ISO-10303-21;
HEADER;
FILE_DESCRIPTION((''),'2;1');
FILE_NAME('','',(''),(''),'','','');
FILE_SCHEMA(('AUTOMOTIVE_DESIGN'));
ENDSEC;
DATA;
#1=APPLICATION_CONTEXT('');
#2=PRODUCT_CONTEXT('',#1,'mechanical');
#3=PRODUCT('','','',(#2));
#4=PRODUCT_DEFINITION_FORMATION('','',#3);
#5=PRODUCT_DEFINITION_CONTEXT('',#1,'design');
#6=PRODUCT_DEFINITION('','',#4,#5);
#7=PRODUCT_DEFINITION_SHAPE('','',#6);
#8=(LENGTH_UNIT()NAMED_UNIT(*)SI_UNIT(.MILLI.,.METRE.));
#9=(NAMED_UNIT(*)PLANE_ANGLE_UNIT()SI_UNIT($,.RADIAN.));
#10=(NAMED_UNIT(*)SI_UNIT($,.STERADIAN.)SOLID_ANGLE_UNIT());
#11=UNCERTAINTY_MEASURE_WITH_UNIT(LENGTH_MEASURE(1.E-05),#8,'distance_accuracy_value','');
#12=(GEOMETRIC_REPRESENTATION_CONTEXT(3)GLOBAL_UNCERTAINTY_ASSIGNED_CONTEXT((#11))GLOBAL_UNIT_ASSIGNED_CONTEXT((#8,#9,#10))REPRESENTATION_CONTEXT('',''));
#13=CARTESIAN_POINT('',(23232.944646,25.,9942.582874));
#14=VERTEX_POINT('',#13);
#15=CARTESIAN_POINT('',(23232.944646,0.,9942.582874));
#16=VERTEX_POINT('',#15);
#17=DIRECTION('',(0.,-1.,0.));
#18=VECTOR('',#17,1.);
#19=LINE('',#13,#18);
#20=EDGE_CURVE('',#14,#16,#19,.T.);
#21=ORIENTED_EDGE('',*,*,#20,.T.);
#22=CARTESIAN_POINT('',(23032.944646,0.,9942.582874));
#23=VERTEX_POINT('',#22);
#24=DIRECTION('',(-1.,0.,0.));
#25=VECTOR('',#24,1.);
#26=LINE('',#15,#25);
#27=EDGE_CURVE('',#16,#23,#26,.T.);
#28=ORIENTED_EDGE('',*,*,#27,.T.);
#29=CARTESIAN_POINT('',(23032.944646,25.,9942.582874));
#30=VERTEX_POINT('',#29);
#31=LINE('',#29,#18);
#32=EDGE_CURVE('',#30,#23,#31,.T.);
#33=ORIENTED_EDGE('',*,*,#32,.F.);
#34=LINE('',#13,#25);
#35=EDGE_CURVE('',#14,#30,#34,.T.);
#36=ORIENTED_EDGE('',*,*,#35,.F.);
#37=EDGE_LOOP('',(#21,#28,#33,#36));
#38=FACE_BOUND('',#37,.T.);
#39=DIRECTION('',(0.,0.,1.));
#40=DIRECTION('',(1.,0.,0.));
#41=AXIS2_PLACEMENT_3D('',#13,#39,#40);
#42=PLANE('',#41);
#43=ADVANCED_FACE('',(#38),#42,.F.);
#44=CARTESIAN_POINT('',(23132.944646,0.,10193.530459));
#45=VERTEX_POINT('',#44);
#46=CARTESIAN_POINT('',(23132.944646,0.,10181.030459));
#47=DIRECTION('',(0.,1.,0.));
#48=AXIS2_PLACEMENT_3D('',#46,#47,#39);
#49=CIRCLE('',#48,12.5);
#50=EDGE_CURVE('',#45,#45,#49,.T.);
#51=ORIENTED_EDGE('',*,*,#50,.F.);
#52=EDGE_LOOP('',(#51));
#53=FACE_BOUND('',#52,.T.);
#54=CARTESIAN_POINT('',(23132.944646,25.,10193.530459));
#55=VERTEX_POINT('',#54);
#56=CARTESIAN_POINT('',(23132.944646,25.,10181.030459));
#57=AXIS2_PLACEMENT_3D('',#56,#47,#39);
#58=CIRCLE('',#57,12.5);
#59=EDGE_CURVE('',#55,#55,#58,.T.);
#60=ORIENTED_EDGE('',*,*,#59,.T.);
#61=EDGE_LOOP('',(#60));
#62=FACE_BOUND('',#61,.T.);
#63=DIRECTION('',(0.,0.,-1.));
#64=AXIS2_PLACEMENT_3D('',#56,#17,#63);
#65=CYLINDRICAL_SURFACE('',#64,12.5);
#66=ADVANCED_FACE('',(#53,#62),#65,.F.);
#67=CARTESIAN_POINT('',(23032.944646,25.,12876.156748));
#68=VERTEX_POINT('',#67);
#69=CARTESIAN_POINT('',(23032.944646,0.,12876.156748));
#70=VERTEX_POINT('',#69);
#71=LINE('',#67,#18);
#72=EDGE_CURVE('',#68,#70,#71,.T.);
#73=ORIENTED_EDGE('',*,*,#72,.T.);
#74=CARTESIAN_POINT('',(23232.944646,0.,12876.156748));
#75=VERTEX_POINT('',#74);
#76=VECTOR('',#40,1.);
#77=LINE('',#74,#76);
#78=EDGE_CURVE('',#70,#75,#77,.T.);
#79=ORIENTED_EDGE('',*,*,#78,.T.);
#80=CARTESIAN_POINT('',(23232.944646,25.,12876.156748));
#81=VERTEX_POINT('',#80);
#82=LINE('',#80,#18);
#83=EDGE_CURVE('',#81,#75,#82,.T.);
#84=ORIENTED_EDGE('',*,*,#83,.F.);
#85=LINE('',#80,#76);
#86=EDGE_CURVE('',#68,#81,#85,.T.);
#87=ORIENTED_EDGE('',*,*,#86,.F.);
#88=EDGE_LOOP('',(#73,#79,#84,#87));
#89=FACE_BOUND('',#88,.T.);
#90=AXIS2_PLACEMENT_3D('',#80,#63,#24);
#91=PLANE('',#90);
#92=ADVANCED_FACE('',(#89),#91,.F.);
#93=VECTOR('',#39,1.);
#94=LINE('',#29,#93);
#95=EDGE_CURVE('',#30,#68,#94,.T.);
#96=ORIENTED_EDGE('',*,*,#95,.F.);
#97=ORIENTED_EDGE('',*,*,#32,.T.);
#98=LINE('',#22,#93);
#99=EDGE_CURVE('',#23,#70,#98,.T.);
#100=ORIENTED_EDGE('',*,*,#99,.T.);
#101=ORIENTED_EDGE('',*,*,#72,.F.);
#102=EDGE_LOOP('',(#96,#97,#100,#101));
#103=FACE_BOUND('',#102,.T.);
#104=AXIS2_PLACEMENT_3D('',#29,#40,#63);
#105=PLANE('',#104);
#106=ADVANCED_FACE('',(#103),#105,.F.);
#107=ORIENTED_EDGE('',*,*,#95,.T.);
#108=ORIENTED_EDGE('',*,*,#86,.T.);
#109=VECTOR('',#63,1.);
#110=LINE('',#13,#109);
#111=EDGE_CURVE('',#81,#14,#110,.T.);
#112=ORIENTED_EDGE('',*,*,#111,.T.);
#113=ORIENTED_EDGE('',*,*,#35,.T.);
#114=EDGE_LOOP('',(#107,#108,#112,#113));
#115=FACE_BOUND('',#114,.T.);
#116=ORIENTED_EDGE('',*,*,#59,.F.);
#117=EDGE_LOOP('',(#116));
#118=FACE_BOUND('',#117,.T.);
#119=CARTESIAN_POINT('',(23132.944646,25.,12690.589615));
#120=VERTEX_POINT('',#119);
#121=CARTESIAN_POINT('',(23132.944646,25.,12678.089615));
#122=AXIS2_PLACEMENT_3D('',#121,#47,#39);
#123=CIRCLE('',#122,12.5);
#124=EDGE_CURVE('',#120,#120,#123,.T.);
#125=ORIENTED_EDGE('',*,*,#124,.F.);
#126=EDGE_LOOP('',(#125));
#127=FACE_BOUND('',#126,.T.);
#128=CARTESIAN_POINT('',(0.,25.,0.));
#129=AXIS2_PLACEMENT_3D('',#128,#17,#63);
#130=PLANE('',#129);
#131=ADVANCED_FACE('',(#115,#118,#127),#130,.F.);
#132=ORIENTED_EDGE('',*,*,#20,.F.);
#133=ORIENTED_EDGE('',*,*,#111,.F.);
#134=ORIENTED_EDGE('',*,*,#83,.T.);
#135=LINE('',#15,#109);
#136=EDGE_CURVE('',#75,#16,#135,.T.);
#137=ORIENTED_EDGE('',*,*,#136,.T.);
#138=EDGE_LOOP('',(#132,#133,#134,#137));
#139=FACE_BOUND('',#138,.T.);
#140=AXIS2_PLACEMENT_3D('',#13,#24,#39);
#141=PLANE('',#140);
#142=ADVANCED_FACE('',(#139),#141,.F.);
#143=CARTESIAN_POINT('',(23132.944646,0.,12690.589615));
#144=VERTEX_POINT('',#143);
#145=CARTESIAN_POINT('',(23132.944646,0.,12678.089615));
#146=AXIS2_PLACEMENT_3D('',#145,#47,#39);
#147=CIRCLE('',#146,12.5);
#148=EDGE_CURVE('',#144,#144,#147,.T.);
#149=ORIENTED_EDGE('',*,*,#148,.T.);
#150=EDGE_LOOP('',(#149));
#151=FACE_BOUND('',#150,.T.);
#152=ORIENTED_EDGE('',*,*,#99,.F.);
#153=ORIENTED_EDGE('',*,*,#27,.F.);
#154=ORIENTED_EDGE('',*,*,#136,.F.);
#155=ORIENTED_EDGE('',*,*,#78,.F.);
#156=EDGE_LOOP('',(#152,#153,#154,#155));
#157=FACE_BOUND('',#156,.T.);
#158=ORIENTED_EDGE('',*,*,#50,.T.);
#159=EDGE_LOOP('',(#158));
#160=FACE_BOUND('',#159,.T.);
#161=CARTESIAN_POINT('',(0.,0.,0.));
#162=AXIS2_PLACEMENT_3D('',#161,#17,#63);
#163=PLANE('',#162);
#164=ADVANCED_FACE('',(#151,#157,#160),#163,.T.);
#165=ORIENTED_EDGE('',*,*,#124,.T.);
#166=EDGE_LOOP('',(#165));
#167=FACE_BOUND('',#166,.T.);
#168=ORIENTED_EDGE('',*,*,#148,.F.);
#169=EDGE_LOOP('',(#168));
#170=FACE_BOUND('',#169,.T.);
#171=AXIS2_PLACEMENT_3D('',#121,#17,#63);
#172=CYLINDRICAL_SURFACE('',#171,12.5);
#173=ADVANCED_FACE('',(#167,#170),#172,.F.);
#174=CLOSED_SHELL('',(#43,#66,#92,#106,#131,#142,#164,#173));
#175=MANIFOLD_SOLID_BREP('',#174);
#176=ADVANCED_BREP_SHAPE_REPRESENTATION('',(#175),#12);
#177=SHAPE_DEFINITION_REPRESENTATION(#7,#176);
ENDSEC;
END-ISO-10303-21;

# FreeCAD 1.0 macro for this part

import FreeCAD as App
import Part
import Sketcher
from FreeCAD import Vector

doc = App.newDocument("Part")
body = doc.addObject("PartDesign::Body", "Body")

# Sketch on XZ plane
sketch1 = doc.addObject("Sketcher::SketchObject", "Sketch")
body.addObject(sketch1)
sketch1.AttachmentSupport = (doc.XZ_Plane, [""])
sketch1.MapMode = "FlatFace"
sketch1.addGeometry([
    Part.LineSegment(Vector(23033, 9943, 0), Vector(23033, 12876, 0)),  # 0
    Part.LineSegment(Vector(23033, 12876, 0), Vector(23233, 12876, 0)),  # 1
    Part.LineSegment(Vector(23233, 12876, 0), Vector(23233, 9943, 0)),  # 2
    Part.LineSegment(Vector(23233, 9943, 0), Vector(23033, 9943, 0)),  # 3
    Part.Circle(Vector(23133, 12678, 0), Vector(0, 0, 1), 12),  # 4
    Part.Circle(Vector(23133, 10181, 0), Vector(0, 0, 1), 12),  # 5
], False)
sketch1.addConstraint([
    Sketcher.Constraint("Coincident", 0, 2, 1, 1),
    Sketcher.Constraint("Coincident", 1, 2, 2, 1),
    Sketcher.Constraint("Coincident", 2, 2, 3, 1),
    Sketcher.Constraint("Coincident", 3, 2, 0, 1),
    Sketcher.Constraint("Vertical", 0),
    Sketcher.Constraint("Horizontal", 1),
    Sketcher.Constraint("Vertical", 2),
    Sketcher.Constraint("Horizontal", 3),
    Sketcher.Constraint("Equal", 4, 5),
    Sketcher.Constraint("Vertical", 4, 3, 5, 3),
    Sketcher.Constraint("Diameter", 4, 25.0),
    Sketcher.Constraint("DistanceX", 1, 1, 1, 2, 200.0),
    Sketcher.Constraint("DistanceX", 0, 2, 4, 3, 100.0),
    Sketcher.Constraint("DistanceY", 0, 1, 0, 2, 2933.573874),
    Sketcher.Constraint("DistanceY", -1, 1, 5, 3, 10181.030459),
    Sketcher.Constraint("DistanceY", -1, 1, 0, 2, 12876.156748),
    Sketcher.Constraint("DistanceY", 2, 2, 4, 3, 2735.506741),
    Sketcher.Constraint("DistanceX", -1, 1, 4, 3, 23132.944646),
])
pad1 = doc.addObject("PartDesign::Pad", "Pad")
body.addObject(pad1)
pad1.Profile = sketch1
pad1.Length = 25
pad1.Reversed = True
body2 = doc.addObject("PartDesign::Body", "Body001")

# Sketch on XZ plane
sketch2 = doc.addObject("Sketcher::SketchObject", "Sketch001")
body2.addObject(sketch2)
sketch2.AttachmentSupport = (doc.getObject("XZ_Plane001"), [""])
sketch2.MapMode = "FlatFace"
sketch2.addGeometry([
    Part.LineSegment(Vector(21933, 9943, 0), Vector(21933, 12834, 0)),  # 0
    Part.LineSegment(Vector(21933, 12834, 0), Vector(22133, 12834, 0)),  # 1
    Part.LineSegment(Vector(22133, 12834, 0), Vector(22133, 9943, 0)),  # 2
    Part.LineSegment(Vector(22133, 9943, 0), Vector(21933, 9943, 0)),  # 3
    Part.Circle(Vector(22033, 12621, 0), Vector(0, 0, 1), 12),  # 4
    Part.Circle(Vector(22033, 10181, 0), Vector(0, 0, 1), 12),  # 5
], False)
sketch2.addConstraint([
    Sketcher.Constraint("Coincident", 0, 2, 1, 1),
    Sketcher.Constraint("Coincident", 1, 2, 2, 1),
    Sketcher.Constraint("Coincident", 2, 2, 3, 1),
    Sketcher.Constraint("Coincident", 3, 2, 0, 1),
    Sketcher.Constraint("Vertical", 0),
    Sketcher.Constraint("Horizontal", 1),
    Sketcher.Constraint("Vertical", 2),
    Sketcher.Constraint("Horizontal", 3),
    Sketcher.Constraint("Equal", 4, 5),
    Sketcher.Constraint("Vertical", 4, 3, 5, 3),
    Sketcher.Constraint("Diameter", 4, 25.0),
    Sketcher.Constraint("DistanceX", 1, 1, 1, 2, 200.0),
    Sketcher.Constraint("DistanceX", 0, 2, 4, 3, 100.0),
    Sketcher.Constraint("DistanceY", 0, 1, 0, 2, 2891.00092),
    Sketcher.Constraint("DistanceY", -1, 1, 5, 3, 10181.030459),
    Sketcher.Constraint("DistanceY", 4, 3, 0, 2, 212.355509),
    Sketcher.Constraint("DistanceX", -1, 1, 4, 3, 22032.944646),
    Sketcher.Constraint("DistanceY", -1, 1, 4, 3, 12621.228285),
])
pad2 = doc.addObject("PartDesign::Pad", "Pad001")
body2.addObject(pad2)
pad2.Profile = sketch2
pad2.Length = 25
pad2.Reversed = True
body3 = doc.addObject("PartDesign::Body", "Body002")

# Sketch on XZ plane
sketch3 = doc.addObject("Sketcher::SketchObject", "Sketch002")
body3.addObject(sketch3)
sketch3.AttachmentSupport = (doc.getObject("XZ_Plane002"), [""])
sketch3.MapMode = "FlatFace"
sketch3.addGeometry([
    Part.LineSegment(Vector(20733, 9943, 0), Vector(20733, 12599, 0)),  # 0
    Part.LineSegment(Vector(20733, 12599, 0), Vector(20933, 12599, 0)),  # 1
    Part.LineSegment(Vector(20933, 12599, 0), Vector(20933, 9943, 0)),  # 2
    Part.LineSegment(Vector(20933, 9943, 0), Vector(20733, 9943, 0)),  # 3
    Part.Circle(Vector(20833, 12349, 0), Vector(0, 0, 1), 12),  # 4
    Part.Circle(Vector(20833, 10181, 0), Vector(0, 0, 1), 12),  # 5
], False)
sketch3.addConstraint([
    Sketcher.Constraint("Coincident", 0, 2, 1, 1),
    Sketcher.Constraint("Coincident", 1, 2, 2, 1),
    Sketcher.Constraint("Coincident", 2, 2, 3, 1),
    Sketcher.Constraint("Coincident", 3, 2, 0, 1),
    Sketcher.Constraint("Vertical", 0),
    Sketcher.Constraint("Horizontal", 1),
    Sketcher.Constraint("Vertical", 2),
    Sketcher.Constraint("Horizontal", 3),
    Sketcher.Constraint("Equal", 4, 5),
    Sketcher.Constraint("Vertical", 4, 3, 5, 3),
    Sketcher.Constraint("Diameter", 4, 25.0),
    Sketcher.Constraint("DistanceX", 1, 1, 1, 2, 200.0),
    Sketcher.Constraint("DistanceX", 0, 2, 4, 3, 100.0),
    Sketcher.Constraint("DistanceY", 0, 1, 0, 2, 2656.849672),
    Sketcher.Constraint("DistanceY", -1, 1, 4, 3, 12348.754241),
    Sketcher.Constraint("DistanceY", -1, 1, 5, 3, 10181.030459),
    Sketcher.Constraint("DistanceX", -1, 1, 4, 3, 20832.944646),
    Sketcher.Constraint("DistanceY", -1, 1, 0, 2, 12599.432546),
])
pad3 = doc.addObject("PartDesign::Pad", "Pad002")
body3.addObject(pad3)
pad3.Profile = sketch3
pad3.Length = 25
pad3.Reversed = True
body4 = doc.addObject("PartDesign::Body", "Body003")

# Sketch on XZ plane
sketch4 = doc.addObject("Sketcher::SketchObject", "Sketch003")
body4.addObject(sketch4)
sketch4.AttachmentSupport = (doc.getObject("XZ_Plane003"), [""])
sketch4.MapMode = "FlatFace"
sketch4.addGeometry([
    Part.LineSegment(Vector(19533, 9943, 0), Vector(19533, 12110, 0)),  # 0
    Part.LineSegment(Vector(19533, 12110, 0), Vector(19733, 12110, 0)),  # 1
    Part.LineSegment(Vector(19733, 12110, 0), Vector(19733, 9943, 0)),  # 2
    Part.LineSegment(Vector(19733, 9943, 0), Vector(19533, 9943, 0)),  # 3
    Part.Circle(Vector(19633, 11827, 0), Vector(0, 0, 1), 12),  # 4
    Part.Circle(Vector(19633, 10181, 0), Vector(0, 0, 1), 12),  # 5
], False)
sketch4.addConstraint([
    Sketcher.Constraint("Coincident", 0, 2, 1, 1),
    Sketcher.Constraint("Coincident", 1, 2, 2, 1),
    Sketcher.Constraint("Coincident", 2, 2, 3, 1),
    Sketcher.Constraint("Coincident", 3, 2, 0, 1),
    Sketcher.Constraint("Vertical", 0),
    Sketcher.Constraint("Horizontal", 1),
    Sketcher.Constraint("Vertical", 2),
    Sketcher.Constraint("Horizontal", 3),
    Sketcher.Constraint("Equal", 4, 5),
    Sketcher.Constraint("Vertical", 4, 3, 5, 3),
    Sketcher.Constraint("Diameter", 4, 25.0),
    Sketcher.Constraint("DistanceX", 1, 1, 1, 2, 200.0),
    Sketcher.Constraint("DistanceX", 0, 2, 4, 3, 100.0),
    Sketcher.Constraint("DistanceY", 0, 1, 0, 2, 2167.260699),
    Sketcher.Constraint("DistanceY", -1, 1, 4, 3, 11826.915448),
    Sketcher.Constraint("DistanceY", -1, 1, 5, 3, 10181.030459),
    Sketcher.Constraint("DistanceX", -1, 1, 4, 3, 19632.944646),
    Sketcher.Constraint("DistanceY", -1, 1, 0, 2, 12109.843573),
])
pad4 = doc.addObject("PartDesign::Pad", "Pad003")
body4.addObject(pad4)
pad4.Profile = sketch4
pad4.Length = 25
pad4.Reversed = True
body5 = doc.addObject("PartDesign::Body", "Body004")

# Sketch on XZ plane
sketch5 = doc.addObject("Sketcher::SketchObject", "Sketch004")
body5.addObject(sketch5)
sketch5.AttachmentSupport = (doc.getObject("XZ_Plane004"), [""])
sketch5.MapMode = "FlatFace"
sketch5.addGeometry([
    Part.LineSegment(Vector(18703, 9943, 0), Vector(18703, 11636, 0)),  # 0
    Part.LineSegment(Vector(18703, 11636, 0), Vector(18903, 11636, 0)),  # 1
    Part.LineSegment(Vector(18903, 11636, 0), Vector(18903, 9943, 0)),  # 2
    Part.LineSegment(Vector(18903, 9943, 0), Vector(18703, 9943, 0)),  # 3
    Part.Circle(Vector(18803, 11284, 0), Vector(0, 0, 1), 12),  # 4
    Part.Circle(Vector(18803, 10181, 0), Vector(0, 0, 1), 12),  # 5
], False)
sketch5.addConstraint([
    Sketcher.Constraint("Coincident", 0, 2, 1, 1),
    Sketcher.Constraint("Coincident", 1, 2, 2, 1),
    Sketcher.Constraint("Coincident", 2, 2, 3, 1),
    Sketcher.Constraint("Coincident", 3, 2, 0, 1),
    Sketcher.Constraint("Vertical", 0),
    Sketcher.Constraint("Horizontal", 1),
    Sketcher.Constraint("Vertical", 2),
    Sketcher.Constraint("Horizontal", 3),
    Sketcher.Constraint("Equal", 4, 5),
    Sketcher.Constraint("Vertical", 4, 3, 5, 3),
    Sketcher.Constraint("Diameter", 4, 25.0),
    Sketcher.Constraint("DistanceX", 1, 1, 1, 2, 200.0),
    Sketcher.Constraint("DistanceX", 0, 2, 4, 3, 100.0),
    Sketcher.Constraint("DistanceY", 5, 3, 0, 2, 1455.188998),
    Sketcher.Constraint("DistanceY", 0, 1, 0, 2, 1693.636583),
    Sketcher.Constraint("DistanceY", -1, 1, 4, 3, 11283.669779),
    Sketcher.Constraint("DistanceY", -1, 1, 5, 3, 10181.030459),
    Sketcher.Constraint("DistanceX", -1, 1, 4, 3, 18802.944646),
])
pad5 = doc.addObject("PartDesign::Pad", "Pad004")
body5.addObject(pad5)
pad5.Profile = sketch5
pad5.Length = 25
pad5.Reversed = True
body6 = doc.addObject("PartDesign::Body", "Body005")

# Sketch on XZ plane
sketch6 = doc.addObject("Sketcher::SketchObject", "Sketch005")
body6.addObject(sketch6)
sketch6.AttachmentSupport = (doc.getObject("XZ_Plane005"), [""])
sketch6.MapMode = "FlatFace"
sketch6.addGeometry([
    Part.LineSegment(Vector(17214, 8774, 0), Vector(17214, 13868, 0)),
    Part.LineSegment(Vector(17214, 13868, 0), Vector(22466, 13868, 0)),
    Part.LineSegment(Vector(22466, 13868, 0), Vector(22466, 8774, 0)),
    Part.LineSegment(Vector(22466, 8774, 0), Vector(17214, 8774, 0)),
], False)
sketch6.addConstraint([
    Sketcher.Constraint("Coincident", 0, 2, 1, 1),
    Sketcher.Constraint("Coincident", 1, 2, 2, 1),
    Sketcher.Constraint("Coincident", 2, 2, 3, 1),
    Sketcher.Constraint("Coincident", 3, 2, 0, 1),
    Sketcher.Constraint("Vertical", 0),
    Sketcher.Constraint("Horizontal", 1),
    Sketcher.Constraint("Vertical", 2),
    Sketcher.Constraint("Horizontal", 3),
    Sketcher.Constraint("DistanceX", 1, 1, 1, 2, 5252.28704),
    Sketcher.Constraint("DistanceY", 0, 1, 0, 2, 5093.660921),
    Sketcher.Constraint("DistanceX", -1, 1, 0, 2, 17213.793171),
    Sketcher.Constraint("DistanceY", -1, 1, 0, 2, 13868.07465),
])
pad6 = doc.addObject("PartDesign::Pad", "Pad005")
body6.addObject(pad6)
pad6.Profile = sketch6
pad6.Length = 26
pad6.Reversed = True
doc.recompute()

body7 = doc.addObject("PartDesign::Body", "Body006")
body7.BaseFeature = body6
boolean = doc.addObject("PartDesign::Boolean", "Boolean")
body2.addObject(boolean)
boolean.Type = "Cut"
boolean.addObjects([body7])
doc.recompute()

body8 = doc.addObject("PartDesign::Body", "Body007")
body8.BaseFeature = body6
boolean2 = doc.addObject("PartDesign::Boolean", "Boolean001")
body3.addObject(boolean2)
boolean2.Type = "Cut"
boolean2.addObjects([body8])
doc.recompute()

body9 = doc.addObject("PartDesign::Body", "Body008")
body9.BaseFeature = body6
boolean3 = doc.addObject("PartDesign::Boolean", "Boolean002")
body4.addObject(boolean3)
boolean3.Type = "Cut"
boolean3.addObjects([body9])
doc.recompute()

boolean4 = doc.addObject("PartDesign::Boolean", "Boolean003")
body5.addObject(boolean4)
boolean4.Type = "Cut"
boolean4.addObjects([body6])

doc.recompute()
